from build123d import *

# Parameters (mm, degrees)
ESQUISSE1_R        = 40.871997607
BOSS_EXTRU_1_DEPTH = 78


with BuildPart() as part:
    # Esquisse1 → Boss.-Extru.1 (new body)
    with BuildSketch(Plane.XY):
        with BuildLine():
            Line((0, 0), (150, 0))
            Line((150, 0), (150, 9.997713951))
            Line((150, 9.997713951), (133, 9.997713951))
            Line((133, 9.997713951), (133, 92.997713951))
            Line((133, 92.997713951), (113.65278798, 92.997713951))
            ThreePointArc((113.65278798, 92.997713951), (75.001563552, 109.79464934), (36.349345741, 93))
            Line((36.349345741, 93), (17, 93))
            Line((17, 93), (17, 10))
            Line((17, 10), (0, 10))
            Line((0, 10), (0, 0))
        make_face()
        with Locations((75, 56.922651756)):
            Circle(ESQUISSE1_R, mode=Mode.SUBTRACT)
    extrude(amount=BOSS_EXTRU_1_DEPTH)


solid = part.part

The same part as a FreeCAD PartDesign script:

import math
import FreeCAD as App
import Part
import Sketcher
from FreeCAD import Vector
Q = App.Units.Quantity

doc = App.newDocument("Part")
body = doc.addObject("PartDesign::Body", "Body")

sketch1 = doc.addObject("Sketcher::SketchObject", "Sketch")
body.addObject(sketch1)
sketch1.AttachmentSupport = (doc.XY_Plane, [""])
sketch1.MapMode = "FlatFace"
sketch1.addGeometry([
    Part.LineSegment(Vector(0, 0, 0), Vector(150, 0, 0)),
    Part.LineSegment(Vector(150, 0, 0), Vector(150, 10, 0)),
    Part.LineSegment(Vector(150, 10, 0), Vector(133, 10, 0)),
    Part.LineSegment(Vector(133, 10, 0), Vector(133, 93, 0)),
    Part.LineSegment(Vector(133, 93, 0), Vector(114, 93, 0)),
    Part.ArcOfCircle(Part.Circle(Vector(75, 57, 0), Vector(0, 0, 1), 53), math.radians(43), math.radians(137)),
    Part.LineSegment(Vector(36, 93, 0), Vector(17, 93, 0)),
    Part.LineSegment(Vector(17, 93, 0), Vector(17, 10, 0)),
    Part.LineSegment(Vector(17, 10, 0), Vector(0, 10, 0)),
    Part.LineSegment(Vector(0, 10, 0), Vector(0, 0, 0)),
    Part.Circle(Vector(75, 57, 0), Vector(0, 0, 1), 41),
], False)
sketch1.addConstraint([
    Sketcher.Constraint("Coincident", 0, 2, 1, 1),
    Sketcher.Constraint("Coincident", 1, 2, 2, 1),
    Sketcher.Constraint("Coincident", 2, 2, 3, 1),
    Sketcher.Constraint("Coincident", 3, 2, 4, 1),
    Sketcher.Constraint("Coincident", 4, 2, 5, 1),
    Sketcher.Constraint("Coincident", 5, 2, 6, 1),
    Sketcher.Constraint("Coincident", 6, 2, 7, 1),
    Sketcher.Constraint("Coincident", 7, 2, 8, 1),
    Sketcher.Constraint("Coincident", 8, 2, 9, 1),
    Sketcher.Constraint("Coincident", 9, 2, 0, 1),
    Sketcher.Constraint("Horizontal", 0),
    Sketcher.Constraint("Vertical", 1),
    Sketcher.Constraint("Horizontal", 2),
    Sketcher.Constraint("Vertical", 3),
    Sketcher.Constraint("Horizontal", 4),
    Sketcher.Constraint("Horizontal", 6),
    Sketcher.Constraint("Vertical", 7),
    Sketcher.Constraint("Horizontal", 8),
    Sketcher.Constraint("Vertical", 9),
    Sketcher.Constraint("Coincident", 9, 2, -1, 1),
    Sketcher.Constraint("Coincident", 10, 3, 5, 3),
    Sketcher.Constraint("Equal", 2, 8),
    Sketcher.Constraint("Equal", 3, 7),
    Sketcher.Constraint("DistanceX", 0, 1, 0, 2, Q("150 mm")),
    Sketcher.Constraint("DistanceX", 2, 2, 2, 1, Q("17 mm")),
    Sketcher.Constraint("DistanceY", 3, 1, 3, 2, Q("83 mm")),
    Sketcher.Constraint("DistanceY", 9, 2, 9, 1, Q("10 mm")),
    Sketcher.Constraint("DistanceX", -1, 1, 5, 3, Q("75 mm")),
    Sketcher.Constraint("Diameter", 10, Q("81.743995 mm")),
    Sketcher.Constraint("Radius", 5, Q("52.871998 mm")),
    Sketcher.Constraint("DistanceX", 4, 2, 4, 1, Q("19.347212 mm")),
    Sketcher.Constraint("DistanceX", 6, 2, 6, 1, Q("19.349346 mm")),
])
pad1 = doc.addObject("PartDesign::Pad", "Pad")
body.addObject(pad1)
pad1.Profile = sketch1
pad1.Length = 78

doc.recompute()
